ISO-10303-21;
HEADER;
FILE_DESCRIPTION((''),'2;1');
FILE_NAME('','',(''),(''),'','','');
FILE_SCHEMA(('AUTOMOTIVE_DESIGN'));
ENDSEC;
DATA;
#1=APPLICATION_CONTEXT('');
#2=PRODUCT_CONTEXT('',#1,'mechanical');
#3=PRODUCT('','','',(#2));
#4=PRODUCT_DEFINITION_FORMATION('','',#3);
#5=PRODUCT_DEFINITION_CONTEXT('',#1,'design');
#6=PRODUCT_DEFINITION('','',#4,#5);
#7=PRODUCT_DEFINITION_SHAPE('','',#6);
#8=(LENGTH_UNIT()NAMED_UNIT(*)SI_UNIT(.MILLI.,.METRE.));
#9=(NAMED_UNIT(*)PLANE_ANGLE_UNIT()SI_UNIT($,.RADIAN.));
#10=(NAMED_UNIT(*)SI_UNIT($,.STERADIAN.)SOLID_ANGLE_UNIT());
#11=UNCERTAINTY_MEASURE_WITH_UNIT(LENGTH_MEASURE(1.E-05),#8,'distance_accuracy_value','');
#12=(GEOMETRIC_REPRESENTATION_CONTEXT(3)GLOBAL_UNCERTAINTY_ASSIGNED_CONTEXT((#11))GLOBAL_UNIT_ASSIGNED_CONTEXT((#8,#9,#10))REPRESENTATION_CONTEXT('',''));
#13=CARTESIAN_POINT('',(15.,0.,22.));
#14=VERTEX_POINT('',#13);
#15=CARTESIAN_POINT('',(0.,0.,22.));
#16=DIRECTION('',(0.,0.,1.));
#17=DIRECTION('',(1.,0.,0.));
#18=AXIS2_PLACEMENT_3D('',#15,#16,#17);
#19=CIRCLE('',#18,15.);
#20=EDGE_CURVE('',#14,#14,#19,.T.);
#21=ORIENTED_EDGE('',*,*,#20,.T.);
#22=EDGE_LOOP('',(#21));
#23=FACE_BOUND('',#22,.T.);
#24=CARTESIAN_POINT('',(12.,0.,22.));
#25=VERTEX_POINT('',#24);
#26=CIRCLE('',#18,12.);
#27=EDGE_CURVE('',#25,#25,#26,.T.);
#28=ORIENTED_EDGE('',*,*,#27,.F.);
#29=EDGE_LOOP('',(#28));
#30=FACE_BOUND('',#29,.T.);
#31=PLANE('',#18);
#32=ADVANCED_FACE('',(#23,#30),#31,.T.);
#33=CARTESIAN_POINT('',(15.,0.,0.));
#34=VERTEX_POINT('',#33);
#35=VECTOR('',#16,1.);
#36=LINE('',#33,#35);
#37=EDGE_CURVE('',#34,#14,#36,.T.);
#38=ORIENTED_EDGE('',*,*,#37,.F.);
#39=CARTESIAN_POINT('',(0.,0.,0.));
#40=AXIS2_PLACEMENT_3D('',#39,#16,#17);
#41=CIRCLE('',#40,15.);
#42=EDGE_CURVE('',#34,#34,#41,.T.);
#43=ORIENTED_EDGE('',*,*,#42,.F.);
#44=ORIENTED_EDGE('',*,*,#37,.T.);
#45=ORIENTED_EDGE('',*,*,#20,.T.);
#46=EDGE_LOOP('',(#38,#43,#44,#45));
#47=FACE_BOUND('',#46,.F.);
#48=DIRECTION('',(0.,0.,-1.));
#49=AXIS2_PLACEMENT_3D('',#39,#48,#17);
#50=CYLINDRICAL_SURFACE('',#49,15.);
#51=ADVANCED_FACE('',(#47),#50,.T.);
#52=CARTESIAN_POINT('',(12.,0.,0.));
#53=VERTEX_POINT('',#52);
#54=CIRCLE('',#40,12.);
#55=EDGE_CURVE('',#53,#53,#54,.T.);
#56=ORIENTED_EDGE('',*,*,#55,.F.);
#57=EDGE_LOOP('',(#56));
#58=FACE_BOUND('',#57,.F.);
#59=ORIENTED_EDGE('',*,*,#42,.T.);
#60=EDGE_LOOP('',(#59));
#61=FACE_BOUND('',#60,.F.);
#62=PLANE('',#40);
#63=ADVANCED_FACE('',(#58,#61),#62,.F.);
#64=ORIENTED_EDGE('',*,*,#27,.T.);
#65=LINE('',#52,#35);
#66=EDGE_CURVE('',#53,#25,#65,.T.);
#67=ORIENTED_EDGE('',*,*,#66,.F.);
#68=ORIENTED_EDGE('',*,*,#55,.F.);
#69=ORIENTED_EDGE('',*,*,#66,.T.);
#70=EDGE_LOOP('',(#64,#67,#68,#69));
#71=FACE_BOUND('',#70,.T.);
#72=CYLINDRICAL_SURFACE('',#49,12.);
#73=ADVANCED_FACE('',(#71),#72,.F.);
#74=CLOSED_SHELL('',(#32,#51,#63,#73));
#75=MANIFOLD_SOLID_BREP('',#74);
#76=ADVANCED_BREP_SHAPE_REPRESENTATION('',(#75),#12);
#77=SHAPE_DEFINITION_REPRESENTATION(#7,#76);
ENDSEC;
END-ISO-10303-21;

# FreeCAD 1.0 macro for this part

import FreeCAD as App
import Part
import Sketcher
from FreeCAD import Vector
Q = App.Units.Quantity

doc = App.newDocument("Part")
body = doc.addObject("PartDesign::Body", "Body")

sketch1 = body.newObject("Sketcher::SketchObject", "Sketch")
sketch1.AttachmentSupport = (doc.getObject("XY_Plane"), [""])
sketch1.MapMode = "FlatFace"
sketch1.addGeometry([
    Part.Circle(Vector(0, 0, 0), Vector(0, 0, 1), 15),
    Part.Circle(Vector(0, 0, 0), Vector(0, 0, 1), 12),
], False)
sketch1.addConstraint([
    Sketcher.Constraint("Coincident", 0, 3, -1, 1),
    Sketcher.Constraint("Coincident", 1, 3, -1, 1),
    Sketcher.Constraint("Diameter", 0, Q("30 mm")),
    Sketcher.Constraint("Diameter", 1, Q("24 mm")),
])
pad1 = body.newObject("PartDesign::Pad", "Pad")
pad1.Profile = sketch1
pad1.Length = 22

doc.recompute()
